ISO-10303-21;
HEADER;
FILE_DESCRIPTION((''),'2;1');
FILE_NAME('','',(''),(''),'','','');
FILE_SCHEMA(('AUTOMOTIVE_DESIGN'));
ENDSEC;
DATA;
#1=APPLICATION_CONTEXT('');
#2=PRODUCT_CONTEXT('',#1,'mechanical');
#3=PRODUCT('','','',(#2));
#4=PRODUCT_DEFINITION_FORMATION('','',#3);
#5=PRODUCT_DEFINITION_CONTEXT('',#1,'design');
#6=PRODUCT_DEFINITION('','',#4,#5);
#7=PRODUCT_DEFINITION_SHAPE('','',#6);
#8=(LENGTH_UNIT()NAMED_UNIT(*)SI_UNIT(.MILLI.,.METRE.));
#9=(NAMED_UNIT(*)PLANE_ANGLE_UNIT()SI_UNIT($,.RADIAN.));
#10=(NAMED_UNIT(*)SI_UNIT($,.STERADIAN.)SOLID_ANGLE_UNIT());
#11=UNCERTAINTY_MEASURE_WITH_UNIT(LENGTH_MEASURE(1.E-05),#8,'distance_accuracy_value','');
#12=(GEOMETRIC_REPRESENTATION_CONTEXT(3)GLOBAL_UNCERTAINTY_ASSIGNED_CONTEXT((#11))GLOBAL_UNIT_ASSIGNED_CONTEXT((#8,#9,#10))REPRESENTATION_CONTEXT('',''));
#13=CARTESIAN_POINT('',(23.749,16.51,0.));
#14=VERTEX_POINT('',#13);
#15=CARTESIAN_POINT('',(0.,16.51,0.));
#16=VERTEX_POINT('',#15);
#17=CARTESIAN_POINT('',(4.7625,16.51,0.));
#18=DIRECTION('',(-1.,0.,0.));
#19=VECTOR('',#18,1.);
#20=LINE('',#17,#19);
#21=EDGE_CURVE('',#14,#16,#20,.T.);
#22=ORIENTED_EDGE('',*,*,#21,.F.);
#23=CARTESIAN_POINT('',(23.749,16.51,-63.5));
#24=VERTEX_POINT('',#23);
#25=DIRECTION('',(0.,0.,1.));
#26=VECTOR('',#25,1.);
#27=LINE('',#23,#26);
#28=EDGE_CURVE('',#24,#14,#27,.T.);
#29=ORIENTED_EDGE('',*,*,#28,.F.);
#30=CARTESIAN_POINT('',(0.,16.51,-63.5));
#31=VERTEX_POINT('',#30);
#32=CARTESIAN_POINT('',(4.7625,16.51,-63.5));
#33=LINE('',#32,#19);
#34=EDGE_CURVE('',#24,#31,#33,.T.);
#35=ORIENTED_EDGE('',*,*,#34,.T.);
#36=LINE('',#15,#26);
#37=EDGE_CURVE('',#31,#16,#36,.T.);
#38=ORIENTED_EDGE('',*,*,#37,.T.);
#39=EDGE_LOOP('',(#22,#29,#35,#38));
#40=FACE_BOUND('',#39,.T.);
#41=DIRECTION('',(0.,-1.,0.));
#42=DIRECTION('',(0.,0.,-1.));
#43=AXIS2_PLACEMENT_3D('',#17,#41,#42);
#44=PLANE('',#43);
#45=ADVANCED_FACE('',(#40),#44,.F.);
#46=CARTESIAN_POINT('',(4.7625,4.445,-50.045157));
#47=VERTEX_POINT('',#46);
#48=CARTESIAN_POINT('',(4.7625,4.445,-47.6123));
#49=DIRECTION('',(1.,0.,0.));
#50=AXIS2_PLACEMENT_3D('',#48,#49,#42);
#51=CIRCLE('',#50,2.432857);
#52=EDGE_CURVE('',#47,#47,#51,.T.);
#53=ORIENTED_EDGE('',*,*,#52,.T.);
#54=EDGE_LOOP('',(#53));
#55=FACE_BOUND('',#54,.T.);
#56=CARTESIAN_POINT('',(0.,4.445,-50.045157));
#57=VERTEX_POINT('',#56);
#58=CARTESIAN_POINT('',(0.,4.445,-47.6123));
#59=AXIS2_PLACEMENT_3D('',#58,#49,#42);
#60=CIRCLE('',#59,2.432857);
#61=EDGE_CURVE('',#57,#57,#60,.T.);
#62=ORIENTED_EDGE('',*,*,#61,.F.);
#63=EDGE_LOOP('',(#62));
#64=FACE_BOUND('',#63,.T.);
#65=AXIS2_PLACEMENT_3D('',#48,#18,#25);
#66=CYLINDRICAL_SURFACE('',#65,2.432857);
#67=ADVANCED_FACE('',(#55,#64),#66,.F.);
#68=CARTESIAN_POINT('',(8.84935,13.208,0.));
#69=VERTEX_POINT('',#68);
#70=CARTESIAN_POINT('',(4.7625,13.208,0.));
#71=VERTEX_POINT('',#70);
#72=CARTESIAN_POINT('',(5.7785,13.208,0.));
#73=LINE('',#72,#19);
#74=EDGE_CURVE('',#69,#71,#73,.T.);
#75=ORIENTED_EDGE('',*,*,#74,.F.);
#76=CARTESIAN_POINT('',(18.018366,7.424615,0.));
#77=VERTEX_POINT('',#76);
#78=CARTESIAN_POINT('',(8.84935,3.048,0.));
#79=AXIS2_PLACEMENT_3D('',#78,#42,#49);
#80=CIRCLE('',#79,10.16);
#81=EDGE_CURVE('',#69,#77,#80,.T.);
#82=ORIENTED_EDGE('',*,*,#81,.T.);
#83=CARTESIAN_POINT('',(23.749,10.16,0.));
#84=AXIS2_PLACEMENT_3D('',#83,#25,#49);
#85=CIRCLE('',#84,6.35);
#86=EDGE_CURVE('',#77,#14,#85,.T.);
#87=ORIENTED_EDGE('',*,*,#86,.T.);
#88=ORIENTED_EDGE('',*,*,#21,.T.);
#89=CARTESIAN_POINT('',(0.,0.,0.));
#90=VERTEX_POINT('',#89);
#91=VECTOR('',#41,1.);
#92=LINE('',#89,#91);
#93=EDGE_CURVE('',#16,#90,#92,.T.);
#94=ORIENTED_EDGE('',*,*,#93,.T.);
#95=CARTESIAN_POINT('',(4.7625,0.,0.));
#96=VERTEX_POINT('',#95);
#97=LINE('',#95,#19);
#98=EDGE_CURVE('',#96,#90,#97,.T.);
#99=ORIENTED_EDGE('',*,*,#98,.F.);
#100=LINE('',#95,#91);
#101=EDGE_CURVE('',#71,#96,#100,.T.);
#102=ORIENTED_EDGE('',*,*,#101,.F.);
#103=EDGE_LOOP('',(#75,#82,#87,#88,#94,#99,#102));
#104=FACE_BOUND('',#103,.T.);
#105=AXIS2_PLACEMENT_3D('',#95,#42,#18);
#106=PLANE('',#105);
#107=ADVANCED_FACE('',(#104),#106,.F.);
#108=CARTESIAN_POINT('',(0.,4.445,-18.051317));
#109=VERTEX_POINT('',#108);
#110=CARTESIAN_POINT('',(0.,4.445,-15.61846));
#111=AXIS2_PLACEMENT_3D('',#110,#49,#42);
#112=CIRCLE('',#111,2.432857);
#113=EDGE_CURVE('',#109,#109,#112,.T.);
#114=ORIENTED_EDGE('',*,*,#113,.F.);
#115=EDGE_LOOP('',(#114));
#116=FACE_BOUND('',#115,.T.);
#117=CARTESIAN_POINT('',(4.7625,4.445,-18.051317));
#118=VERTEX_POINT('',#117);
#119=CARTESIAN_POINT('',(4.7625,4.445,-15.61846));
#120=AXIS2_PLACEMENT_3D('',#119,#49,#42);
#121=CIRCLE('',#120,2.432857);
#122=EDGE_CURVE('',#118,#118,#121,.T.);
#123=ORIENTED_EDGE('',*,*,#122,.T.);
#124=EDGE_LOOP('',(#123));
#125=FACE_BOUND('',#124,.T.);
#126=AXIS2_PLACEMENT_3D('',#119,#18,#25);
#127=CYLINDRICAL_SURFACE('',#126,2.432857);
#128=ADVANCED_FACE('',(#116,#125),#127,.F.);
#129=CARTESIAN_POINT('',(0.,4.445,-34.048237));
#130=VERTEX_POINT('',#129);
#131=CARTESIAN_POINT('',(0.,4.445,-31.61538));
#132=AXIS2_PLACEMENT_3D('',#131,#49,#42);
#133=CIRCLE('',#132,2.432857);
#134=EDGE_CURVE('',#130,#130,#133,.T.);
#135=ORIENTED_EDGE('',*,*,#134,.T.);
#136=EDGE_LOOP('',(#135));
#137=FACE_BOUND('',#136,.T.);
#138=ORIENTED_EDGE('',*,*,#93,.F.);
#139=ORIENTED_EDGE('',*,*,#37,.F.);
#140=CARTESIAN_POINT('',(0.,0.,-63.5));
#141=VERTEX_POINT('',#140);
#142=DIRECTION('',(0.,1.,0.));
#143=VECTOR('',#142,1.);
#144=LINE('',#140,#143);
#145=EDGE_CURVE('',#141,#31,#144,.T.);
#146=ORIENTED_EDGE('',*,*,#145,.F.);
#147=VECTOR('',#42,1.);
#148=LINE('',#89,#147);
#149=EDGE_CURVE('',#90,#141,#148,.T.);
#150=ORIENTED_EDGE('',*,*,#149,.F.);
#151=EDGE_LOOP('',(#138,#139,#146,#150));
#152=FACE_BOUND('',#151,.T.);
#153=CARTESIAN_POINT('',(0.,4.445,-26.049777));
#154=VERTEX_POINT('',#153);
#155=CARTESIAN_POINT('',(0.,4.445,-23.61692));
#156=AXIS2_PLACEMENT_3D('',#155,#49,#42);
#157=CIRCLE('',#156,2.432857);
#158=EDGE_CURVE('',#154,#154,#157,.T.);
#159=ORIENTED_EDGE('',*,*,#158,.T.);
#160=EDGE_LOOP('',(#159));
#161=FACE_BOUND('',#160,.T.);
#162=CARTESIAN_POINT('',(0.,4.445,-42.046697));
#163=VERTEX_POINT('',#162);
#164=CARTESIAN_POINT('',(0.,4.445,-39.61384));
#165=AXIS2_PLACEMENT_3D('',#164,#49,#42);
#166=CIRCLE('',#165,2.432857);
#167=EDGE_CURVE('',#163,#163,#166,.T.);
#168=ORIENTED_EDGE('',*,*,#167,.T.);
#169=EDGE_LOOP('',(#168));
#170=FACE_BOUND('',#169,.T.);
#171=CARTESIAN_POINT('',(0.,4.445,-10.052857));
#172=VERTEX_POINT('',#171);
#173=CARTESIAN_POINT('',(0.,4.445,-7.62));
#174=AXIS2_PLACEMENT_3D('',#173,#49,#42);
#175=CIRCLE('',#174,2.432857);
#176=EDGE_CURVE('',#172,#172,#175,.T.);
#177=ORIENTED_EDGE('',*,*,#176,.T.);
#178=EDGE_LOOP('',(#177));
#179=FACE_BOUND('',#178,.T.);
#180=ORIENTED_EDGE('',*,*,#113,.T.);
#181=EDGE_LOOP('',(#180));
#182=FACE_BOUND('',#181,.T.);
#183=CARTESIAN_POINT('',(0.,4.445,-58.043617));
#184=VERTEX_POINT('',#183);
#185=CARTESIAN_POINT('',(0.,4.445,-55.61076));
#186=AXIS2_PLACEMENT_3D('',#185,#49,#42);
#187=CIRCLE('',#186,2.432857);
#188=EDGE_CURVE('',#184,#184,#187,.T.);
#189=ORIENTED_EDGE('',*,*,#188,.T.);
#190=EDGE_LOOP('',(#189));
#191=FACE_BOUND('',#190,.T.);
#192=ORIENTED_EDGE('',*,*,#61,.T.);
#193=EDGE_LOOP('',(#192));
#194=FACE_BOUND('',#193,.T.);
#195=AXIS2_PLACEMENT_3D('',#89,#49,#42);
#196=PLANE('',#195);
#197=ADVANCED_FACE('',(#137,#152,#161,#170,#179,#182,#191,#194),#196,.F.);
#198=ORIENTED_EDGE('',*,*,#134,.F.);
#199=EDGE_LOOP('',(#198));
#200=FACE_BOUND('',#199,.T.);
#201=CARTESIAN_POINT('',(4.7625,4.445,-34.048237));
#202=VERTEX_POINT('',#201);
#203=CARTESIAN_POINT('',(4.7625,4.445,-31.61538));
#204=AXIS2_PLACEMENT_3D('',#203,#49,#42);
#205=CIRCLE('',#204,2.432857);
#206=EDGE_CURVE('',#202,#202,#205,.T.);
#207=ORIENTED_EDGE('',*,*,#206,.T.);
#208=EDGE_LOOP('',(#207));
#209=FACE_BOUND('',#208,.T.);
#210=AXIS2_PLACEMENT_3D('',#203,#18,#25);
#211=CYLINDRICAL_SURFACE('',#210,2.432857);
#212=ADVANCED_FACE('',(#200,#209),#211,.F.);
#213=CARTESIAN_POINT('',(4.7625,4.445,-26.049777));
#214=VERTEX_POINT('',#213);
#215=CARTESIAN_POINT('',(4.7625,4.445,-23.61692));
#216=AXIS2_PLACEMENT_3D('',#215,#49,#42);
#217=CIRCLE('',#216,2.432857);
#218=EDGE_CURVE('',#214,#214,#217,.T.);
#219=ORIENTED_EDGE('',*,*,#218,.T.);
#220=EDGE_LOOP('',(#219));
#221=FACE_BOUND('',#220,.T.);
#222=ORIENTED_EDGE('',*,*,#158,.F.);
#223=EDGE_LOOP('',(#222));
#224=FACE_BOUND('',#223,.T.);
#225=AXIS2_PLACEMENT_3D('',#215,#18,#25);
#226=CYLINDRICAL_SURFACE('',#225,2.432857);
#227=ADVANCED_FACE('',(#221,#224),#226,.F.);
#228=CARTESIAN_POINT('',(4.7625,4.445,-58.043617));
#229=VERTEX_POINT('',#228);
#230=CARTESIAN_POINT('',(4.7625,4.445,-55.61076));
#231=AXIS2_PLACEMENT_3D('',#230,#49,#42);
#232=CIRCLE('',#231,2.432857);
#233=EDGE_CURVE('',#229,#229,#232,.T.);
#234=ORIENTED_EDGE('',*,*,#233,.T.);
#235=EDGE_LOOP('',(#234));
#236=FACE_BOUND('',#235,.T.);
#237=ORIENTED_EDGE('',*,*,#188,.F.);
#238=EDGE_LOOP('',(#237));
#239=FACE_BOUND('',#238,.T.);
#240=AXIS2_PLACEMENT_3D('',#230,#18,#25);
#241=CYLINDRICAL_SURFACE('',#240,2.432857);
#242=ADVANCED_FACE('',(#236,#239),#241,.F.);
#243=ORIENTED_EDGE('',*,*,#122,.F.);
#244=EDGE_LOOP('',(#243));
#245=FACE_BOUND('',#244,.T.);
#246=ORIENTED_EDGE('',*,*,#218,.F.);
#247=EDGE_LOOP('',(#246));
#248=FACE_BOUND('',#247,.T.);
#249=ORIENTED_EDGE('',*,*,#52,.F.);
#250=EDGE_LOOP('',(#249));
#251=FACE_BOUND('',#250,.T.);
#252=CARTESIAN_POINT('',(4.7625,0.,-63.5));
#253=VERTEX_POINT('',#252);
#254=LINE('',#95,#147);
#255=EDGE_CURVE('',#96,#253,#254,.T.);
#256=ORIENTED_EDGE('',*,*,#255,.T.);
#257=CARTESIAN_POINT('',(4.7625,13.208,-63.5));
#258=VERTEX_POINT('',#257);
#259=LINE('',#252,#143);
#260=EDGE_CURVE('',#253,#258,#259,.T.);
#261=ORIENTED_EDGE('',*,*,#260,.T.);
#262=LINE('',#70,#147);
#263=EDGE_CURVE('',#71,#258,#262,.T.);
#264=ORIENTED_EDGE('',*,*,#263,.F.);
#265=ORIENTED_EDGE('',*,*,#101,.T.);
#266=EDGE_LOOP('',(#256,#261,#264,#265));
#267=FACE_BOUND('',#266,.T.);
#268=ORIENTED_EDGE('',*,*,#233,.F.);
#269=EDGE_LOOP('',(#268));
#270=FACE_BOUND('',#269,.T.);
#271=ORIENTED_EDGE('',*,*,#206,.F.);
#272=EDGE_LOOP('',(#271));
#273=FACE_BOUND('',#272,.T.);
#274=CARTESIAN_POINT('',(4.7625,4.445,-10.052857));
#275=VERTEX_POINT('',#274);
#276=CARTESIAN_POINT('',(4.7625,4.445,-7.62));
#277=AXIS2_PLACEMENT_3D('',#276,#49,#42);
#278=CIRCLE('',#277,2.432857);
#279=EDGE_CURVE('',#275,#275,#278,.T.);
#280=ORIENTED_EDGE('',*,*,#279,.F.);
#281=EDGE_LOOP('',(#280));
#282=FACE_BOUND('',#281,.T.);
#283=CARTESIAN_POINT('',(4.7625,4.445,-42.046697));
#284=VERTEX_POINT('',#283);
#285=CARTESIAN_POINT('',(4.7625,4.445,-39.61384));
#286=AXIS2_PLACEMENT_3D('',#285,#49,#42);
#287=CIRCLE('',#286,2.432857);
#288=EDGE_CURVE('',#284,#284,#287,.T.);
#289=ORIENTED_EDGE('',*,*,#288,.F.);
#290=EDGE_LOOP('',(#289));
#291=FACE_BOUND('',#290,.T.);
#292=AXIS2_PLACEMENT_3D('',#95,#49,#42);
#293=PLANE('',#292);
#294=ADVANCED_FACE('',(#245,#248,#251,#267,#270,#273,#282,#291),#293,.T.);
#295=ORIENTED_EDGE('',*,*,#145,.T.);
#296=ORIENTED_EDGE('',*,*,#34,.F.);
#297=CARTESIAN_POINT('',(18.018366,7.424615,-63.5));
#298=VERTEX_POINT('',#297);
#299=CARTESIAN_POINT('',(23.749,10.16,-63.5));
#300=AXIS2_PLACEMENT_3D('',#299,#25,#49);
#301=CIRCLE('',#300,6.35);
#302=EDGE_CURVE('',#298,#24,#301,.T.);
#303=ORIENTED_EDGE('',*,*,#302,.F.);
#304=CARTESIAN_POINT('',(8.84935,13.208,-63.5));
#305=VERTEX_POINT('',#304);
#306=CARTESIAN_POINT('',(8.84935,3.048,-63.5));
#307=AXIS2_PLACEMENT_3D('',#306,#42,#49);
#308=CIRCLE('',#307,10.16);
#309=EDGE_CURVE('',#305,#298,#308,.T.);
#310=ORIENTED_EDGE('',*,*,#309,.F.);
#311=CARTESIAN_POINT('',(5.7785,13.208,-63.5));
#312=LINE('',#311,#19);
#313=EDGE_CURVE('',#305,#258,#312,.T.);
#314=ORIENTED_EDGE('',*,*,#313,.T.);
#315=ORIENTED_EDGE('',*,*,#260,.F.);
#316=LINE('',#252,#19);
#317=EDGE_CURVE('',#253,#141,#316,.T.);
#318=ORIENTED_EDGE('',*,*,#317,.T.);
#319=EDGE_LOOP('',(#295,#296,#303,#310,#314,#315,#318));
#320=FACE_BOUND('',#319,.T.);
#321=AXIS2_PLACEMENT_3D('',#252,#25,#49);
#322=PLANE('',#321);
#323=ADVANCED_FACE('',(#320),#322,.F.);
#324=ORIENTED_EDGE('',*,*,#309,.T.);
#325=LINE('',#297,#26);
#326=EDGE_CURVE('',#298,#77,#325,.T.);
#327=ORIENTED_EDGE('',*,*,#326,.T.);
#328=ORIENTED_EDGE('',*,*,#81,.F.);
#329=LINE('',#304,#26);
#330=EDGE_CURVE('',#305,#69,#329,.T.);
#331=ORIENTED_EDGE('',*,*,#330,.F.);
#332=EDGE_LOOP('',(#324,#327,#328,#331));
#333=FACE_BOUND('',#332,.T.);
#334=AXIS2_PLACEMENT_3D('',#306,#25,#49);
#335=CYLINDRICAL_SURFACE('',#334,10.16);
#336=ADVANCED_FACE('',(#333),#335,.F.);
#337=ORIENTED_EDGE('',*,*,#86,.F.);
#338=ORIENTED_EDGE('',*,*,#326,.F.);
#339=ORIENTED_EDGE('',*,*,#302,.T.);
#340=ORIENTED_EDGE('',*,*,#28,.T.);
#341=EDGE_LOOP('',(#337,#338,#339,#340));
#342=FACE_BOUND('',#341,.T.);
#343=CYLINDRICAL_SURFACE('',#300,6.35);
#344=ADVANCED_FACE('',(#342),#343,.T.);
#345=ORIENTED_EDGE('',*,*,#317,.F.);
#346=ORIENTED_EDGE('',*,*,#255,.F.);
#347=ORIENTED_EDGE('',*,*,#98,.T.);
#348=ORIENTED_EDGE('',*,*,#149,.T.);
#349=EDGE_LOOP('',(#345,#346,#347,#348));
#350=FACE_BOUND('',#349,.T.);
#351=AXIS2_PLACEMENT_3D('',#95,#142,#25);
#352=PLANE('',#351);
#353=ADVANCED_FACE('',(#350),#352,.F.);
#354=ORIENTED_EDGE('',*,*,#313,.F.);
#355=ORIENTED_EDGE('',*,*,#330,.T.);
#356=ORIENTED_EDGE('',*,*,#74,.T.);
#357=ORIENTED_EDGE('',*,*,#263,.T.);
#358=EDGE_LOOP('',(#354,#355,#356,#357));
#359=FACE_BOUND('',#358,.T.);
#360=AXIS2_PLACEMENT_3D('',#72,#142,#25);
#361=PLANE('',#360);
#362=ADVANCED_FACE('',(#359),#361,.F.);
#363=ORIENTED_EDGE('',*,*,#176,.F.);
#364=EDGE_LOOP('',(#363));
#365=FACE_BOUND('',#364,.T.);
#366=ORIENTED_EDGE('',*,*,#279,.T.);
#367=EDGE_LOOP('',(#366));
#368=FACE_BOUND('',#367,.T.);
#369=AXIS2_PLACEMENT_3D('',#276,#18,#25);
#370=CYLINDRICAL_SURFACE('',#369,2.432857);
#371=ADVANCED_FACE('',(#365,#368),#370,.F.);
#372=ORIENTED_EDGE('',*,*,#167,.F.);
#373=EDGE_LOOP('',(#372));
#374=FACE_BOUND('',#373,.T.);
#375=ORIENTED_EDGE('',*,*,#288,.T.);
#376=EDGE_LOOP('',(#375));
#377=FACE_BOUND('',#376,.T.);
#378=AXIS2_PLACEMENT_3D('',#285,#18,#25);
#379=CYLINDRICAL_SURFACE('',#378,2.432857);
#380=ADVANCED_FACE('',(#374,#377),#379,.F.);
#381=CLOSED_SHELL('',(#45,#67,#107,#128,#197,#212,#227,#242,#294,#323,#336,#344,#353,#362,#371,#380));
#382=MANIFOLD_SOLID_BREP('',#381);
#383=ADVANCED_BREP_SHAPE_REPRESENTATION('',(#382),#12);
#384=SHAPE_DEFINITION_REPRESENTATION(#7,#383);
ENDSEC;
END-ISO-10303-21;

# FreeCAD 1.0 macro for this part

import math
import FreeCAD as App
import Part
import Sketcher
Q = App.Units.Quantity


def add_polygon(sketch, points):
    """Adds a closed chain of lines whose ends are joined by coincident constraints."""
    first, n = sketch.GeometryCount, len(points)
    for a, b in zip(points, points[1:] + points[:1]):
        sketch.addGeometry(Part.LineSegment(App.Vector(*a, 0), App.Vector(*b, 0)), False)
    for i in range(n):
        sketch.addConstraint(Sketcher.Constraint("Coincident", first + i, 2, first + (i + 1) % n, 1))

doc = App.newDocument("Part")
body = doc.addObject("PartDesign::Body", "Body")

# Sketch on YZ plane
sketch1 = body.newObject("Sketcher::SketchObject", "Sketch")
sketch1.AttachmentSupport = (doc.getObject("YZ_Plane"), [""])
sketch1.MapMode = "FlatFace"
add_polygon(sketch1, [(0, 0), (0, -63.5), (16.5, -63.5), (16.5, 0)])  # lines 0-3
sketch1.addGeometry(Part.Circle(App.Vector(4.4, -55.6, 0), App.Vector(0, 0, 1), 2.4), False)  # 4
sketch1.addGeometry(Part.Circle(App.Vector(4.4, -47.6, 0), App.Vector(0, 0, 1), 2.4), False)  # 5
sketch1.addGeometry(Part.Circle(App.Vector(4.4, -39.6, 0), App.Vector(0, 0, 1), 2.4), False)  # 6
sketch1.addGeometry(Part.Circle(App.Vector(4.4, -31.6, 0), App.Vector(0, 0, 1), 2.4), False)  # 7
sketch1.addGeometry(Part.Circle(App.Vector(4.4, -23.6, 0), App.Vector(0, 0, 1), 2.4), False)  # 8
sketch1.addGeometry(Part.Circle(App.Vector(4.4, -15.6, 0), App.Vector(0, 0, 1), 2.4), False)  # 9
sketch1.addGeometry(Part.Circle(App.Vector(4.4, -7.6, 0), App.Vector(0, 0, 1), 2.4), False)  # 10
sketch1.addConstraint([
    Sketcher.Constraint("Vertical", 0),
    Sketcher.Constraint("Horizontal", 1),
    Sketcher.Constraint("Vertical", 2),
    Sketcher.Constraint("Horizontal", 3),
    Sketcher.Constraint("Coincident", 3, 2, -1, 1),
    Sketcher.Constraint("Equal", 4, 5),
    Sketcher.Constraint("Equal", 5, 6),
    Sketcher.Constraint("Equal", 6, 7),
    Sketcher.Constraint("Equal", 7, 8),
    Sketcher.Constraint("Equal", 8, 9),
    Sketcher.Constraint("Equal", 9, 10),
    Sketcher.Constraint("Vertical", 4, 3, 5, 3),
    Sketcher.Constraint("Vertical", 5, 3, 6, 3),
    Sketcher.Constraint("Vertical", 6, 3, 7, 3),
    Sketcher.Constraint("Vertical", 7, 3, 8, 3),
    Sketcher.Constraint("Vertical", 8, 3, 9, 3),
    Sketcher.Constraint("Vertical", 9, 3, 10, 3),
    Sketcher.Constraint("DistanceY", 0, 2, 0, 1, Q("2.5 in")),
    Sketcher.Constraint("DistanceX", 1, 1, 1, 2, Q("0.65 in")),
    Sketcher.Constraint("DistanceY", 10, 3, -1, 1, Q("0.3 in")),
    Sketcher.Constraint("DistanceX", -1, 1, 4, 3, Q("0.175 in")),
    Sketcher.Constraint("Diameter", 4, Q("4.865713 mm")),
    Sketcher.Constraint("DistanceY", 4, 3, -1, 1, Q("2.1894 in")),
    Sketcher.Constraint("DistanceY", 5, 3, -1, 1, Q("1.8745 in")),
    Sketcher.Constraint("DistanceY", 6, 3, -1, 1, Q("1.5596 in")),
    Sketcher.Constraint("DistanceY", 7, 3, -1, 1, Q("1.2447 in")),
    Sketcher.Constraint("DistanceY", 8, 3, -1, 1, Q("0.9298 in")),
    Sketcher.Constraint("DistanceY", 9, 3, -1, 1, Q("0.6149 in")),
])
pad1 = body.newObject("PartDesign::Pad", "Pad")
pad1.Profile = sketch1
pad1.Length = Q("0.1875 in")

# Sketch on YZ plane
sketch2 = body.newObject("Sketcher::SketchObject", "Sketch001")
sketch2.AttachmentSupport = (doc.getObject("YZ_Plane"), [""])
sketch2.MapMode = "FlatFace"
sketch2.AttachmentOffset = App.Placement(App.Vector(0, 0, 0.1875 * 25.4), App.Rotation())
add_polygon(sketch2, [(16.5, 0), (13.2, 0), (13.2, -63.5), (16.5, -63.5)])  # lines 0-3
sketch2.addConstraint([
    Sketcher.Constraint("Horizontal", 0),
    Sketcher.Constraint("Vertical", 1),
    Sketcher.Constraint("Horizontal", 2),
    Sketcher.Constraint("Vertical", 3),
    Sketcher.Constraint("PointOnObject", 0, 2, -1),
    Sketcher.Constraint("DistanceY", 1, 2, 1, 1, Q("2.5 in")),
    Sketcher.Constraint("DistanceX", 0, 2, 0, 1, Q("0.13 in")),
    Sketcher.Constraint("DistanceX", -1, 1, 0, 2, Q("0.52 in")),
])
pad2 = body.newObject("PartDesign::Pad", "Pad001")
pad2.Profile = sketch2
pad2.Length = Q("0.04 in")

# Sketch on XY plane
sketch3 = body.newObject("Sketcher::SketchObject", "Sketch002")
sketch3.AttachmentSupport = (doc.getObject("XY_Plane"), [""])
sketch3.MapMode = "FlatFace"
sketch3.addGeometry([
    Part.LineSegment(App.Vector(23.7, 16.5, 0), App.Vector(5.8, 16.5, 0)),  # 0
    Part.LineSegment(App.Vector(5.8, 16.5, 0), App.Vector(5.8, 13.2, 0)),  # 1
    Part.LineSegment(App.Vector(5.8, 13.2, 0), App.Vector(8.8, 13.2, 0)),  # 2
    Part.ArcOfCircle(Part.Circle(App.Vector(8.8, 3, 0), App.Vector(0, 0, 1), 10.2), math.radians(26), math.radians(90)),  # 3
    Part.ArcOfCircle(Part.Circle(App.Vector(23.7, 10.2, 0), App.Vector(0, 0, 1), 6.3), math.radians(-154), math.radians(90)),  # 4
], False)
sketch3.addConstraint([
    Sketcher.Constraint("Coincident", 0, 2, 1, 1),
    Sketcher.Constraint("Coincident", 1, 2, 2, 1),
    Sketcher.Constraint("Tangent", 2, 2, 3, 2),
    Sketcher.Constraint("Tangent", 3, 1, 4, 1),
    Sketcher.Constraint("Tangent", 4, 2, 0, 1),
    Sketcher.Constraint("Horizontal", 0),
    Sketcher.Constraint("Vertical", 1),
    Sketcher.Constraint("Horizontal", 2),
    Sketcher.Constraint("Radius", 3, Q("0.4 in")),
    Sketcher.Constraint("Radius", 4, Q("0.25 in")),
    Sketcher.Constraint("DistanceY", 1, 2, 1, 1, Q("0.13 in")),
    Sketcher.Constraint("DistanceY", -1, 1, 4, 3, Q("0.4 in")),
    Sketcher.Constraint("DistanceX", 0, 2, 0, 1, Q("0.7075 in")),
    Sketcher.Constraint("DistanceX", -1, 1, 4, 3, Q("0.935 in")),
])
pad3 = body.newObject("PartDesign::Pad", "Pad002")
pad3.Profile = sketch3
pad3.Length = Q("2.5 in")
pad3.Reversed = True

doc.recompute()
